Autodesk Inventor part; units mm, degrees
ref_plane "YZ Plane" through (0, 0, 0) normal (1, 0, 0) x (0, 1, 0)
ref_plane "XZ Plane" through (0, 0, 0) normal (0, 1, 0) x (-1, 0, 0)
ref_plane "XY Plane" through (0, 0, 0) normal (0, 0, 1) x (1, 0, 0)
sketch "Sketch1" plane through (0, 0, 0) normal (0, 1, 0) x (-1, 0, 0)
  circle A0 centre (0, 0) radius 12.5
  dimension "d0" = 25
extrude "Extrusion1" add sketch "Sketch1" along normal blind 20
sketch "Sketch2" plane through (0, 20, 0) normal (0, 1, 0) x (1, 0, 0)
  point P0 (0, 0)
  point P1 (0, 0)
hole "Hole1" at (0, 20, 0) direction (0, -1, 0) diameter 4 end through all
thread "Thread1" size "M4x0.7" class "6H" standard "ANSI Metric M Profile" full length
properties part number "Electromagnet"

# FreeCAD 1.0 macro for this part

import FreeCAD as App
import Part
import Sketcher

V = App.Vector

doc = App.newDocument("Part")
params = doc.addObject("Spreadsheet::Sheet", "Params")
for row, (alias, value) in enumerate([
    ("sketch1_diameter", "25 mm"),
    ("pad1_length", "20 mm"),
    ("sketch2_diameter", "4 mm"),
    ("hole_diameter", "4 mm"),
], start=1):
    params.set(f"A{row}", alias)
    params.set(f"B{row}", "=" + value)
    params.setAlias(f"B{row}", alias)

body = doc.addObject("PartDesign::Body", "Body")

sketch1 = body.newObject("Sketcher::SketchObject", "Sketch")
sketch1.AttachmentSupport = (doc.getObject("XZ_Plane"), [""])
sketch1.MapMode = "FlatFace"
sketch1.addGeometry(Part.Circle(V(0, 0, 0), V(0, 0, 1), 12), False)
sketch1.addConstraint(Sketcher.Constraint("Coincident", 0, 3, -1, 1))
sketch1.addConstraint(Sketcher.Constraint("Diameter", 0, 25.0))
sketch1.setExpression("Constraints[1]", "Params.sketch1_diameter")
pad1 = body.newObject("PartDesign::Pad", "Pad")
pad1.Profile = sketch1
pad1.setExpression("Length", "Params.pad1_length")
pad1.Reversed = True

sketch2 = body.newObject("Sketcher::SketchObject", "Sketch001")
sketch2.AttachmentSupport = (doc.getObject("XZ_Plane"), [""])
sketch2.MapMode = "FlatFace"
sketch2.AttachmentOffset = App.Placement(V(0, 0, -20), App.Rotation())
sketch2.addGeometry(Part.Circle(V(0, 0, 0), V(0, 0, 1), 2), False)
sketch2.addConstraint(Sketcher.Constraint("Coincident", 0, 3, -1, 1))
sketch2.addConstraint(Sketcher.Constraint("Diameter", 0, 4.0))
sketch2.setExpression("Constraints[1]", "Params.sketch2_diameter")
doc.recompute()
hole = body.newObject("PartDesign::Hole", "Hole")
hole.Profile = sketch2
hole.ThreadType = "None"
hole.setExpression("Diameter", "Params.hole_diameter")
hole.DepthType = "ThroughAll"
hole.Reversed = True

doc.recompute()
